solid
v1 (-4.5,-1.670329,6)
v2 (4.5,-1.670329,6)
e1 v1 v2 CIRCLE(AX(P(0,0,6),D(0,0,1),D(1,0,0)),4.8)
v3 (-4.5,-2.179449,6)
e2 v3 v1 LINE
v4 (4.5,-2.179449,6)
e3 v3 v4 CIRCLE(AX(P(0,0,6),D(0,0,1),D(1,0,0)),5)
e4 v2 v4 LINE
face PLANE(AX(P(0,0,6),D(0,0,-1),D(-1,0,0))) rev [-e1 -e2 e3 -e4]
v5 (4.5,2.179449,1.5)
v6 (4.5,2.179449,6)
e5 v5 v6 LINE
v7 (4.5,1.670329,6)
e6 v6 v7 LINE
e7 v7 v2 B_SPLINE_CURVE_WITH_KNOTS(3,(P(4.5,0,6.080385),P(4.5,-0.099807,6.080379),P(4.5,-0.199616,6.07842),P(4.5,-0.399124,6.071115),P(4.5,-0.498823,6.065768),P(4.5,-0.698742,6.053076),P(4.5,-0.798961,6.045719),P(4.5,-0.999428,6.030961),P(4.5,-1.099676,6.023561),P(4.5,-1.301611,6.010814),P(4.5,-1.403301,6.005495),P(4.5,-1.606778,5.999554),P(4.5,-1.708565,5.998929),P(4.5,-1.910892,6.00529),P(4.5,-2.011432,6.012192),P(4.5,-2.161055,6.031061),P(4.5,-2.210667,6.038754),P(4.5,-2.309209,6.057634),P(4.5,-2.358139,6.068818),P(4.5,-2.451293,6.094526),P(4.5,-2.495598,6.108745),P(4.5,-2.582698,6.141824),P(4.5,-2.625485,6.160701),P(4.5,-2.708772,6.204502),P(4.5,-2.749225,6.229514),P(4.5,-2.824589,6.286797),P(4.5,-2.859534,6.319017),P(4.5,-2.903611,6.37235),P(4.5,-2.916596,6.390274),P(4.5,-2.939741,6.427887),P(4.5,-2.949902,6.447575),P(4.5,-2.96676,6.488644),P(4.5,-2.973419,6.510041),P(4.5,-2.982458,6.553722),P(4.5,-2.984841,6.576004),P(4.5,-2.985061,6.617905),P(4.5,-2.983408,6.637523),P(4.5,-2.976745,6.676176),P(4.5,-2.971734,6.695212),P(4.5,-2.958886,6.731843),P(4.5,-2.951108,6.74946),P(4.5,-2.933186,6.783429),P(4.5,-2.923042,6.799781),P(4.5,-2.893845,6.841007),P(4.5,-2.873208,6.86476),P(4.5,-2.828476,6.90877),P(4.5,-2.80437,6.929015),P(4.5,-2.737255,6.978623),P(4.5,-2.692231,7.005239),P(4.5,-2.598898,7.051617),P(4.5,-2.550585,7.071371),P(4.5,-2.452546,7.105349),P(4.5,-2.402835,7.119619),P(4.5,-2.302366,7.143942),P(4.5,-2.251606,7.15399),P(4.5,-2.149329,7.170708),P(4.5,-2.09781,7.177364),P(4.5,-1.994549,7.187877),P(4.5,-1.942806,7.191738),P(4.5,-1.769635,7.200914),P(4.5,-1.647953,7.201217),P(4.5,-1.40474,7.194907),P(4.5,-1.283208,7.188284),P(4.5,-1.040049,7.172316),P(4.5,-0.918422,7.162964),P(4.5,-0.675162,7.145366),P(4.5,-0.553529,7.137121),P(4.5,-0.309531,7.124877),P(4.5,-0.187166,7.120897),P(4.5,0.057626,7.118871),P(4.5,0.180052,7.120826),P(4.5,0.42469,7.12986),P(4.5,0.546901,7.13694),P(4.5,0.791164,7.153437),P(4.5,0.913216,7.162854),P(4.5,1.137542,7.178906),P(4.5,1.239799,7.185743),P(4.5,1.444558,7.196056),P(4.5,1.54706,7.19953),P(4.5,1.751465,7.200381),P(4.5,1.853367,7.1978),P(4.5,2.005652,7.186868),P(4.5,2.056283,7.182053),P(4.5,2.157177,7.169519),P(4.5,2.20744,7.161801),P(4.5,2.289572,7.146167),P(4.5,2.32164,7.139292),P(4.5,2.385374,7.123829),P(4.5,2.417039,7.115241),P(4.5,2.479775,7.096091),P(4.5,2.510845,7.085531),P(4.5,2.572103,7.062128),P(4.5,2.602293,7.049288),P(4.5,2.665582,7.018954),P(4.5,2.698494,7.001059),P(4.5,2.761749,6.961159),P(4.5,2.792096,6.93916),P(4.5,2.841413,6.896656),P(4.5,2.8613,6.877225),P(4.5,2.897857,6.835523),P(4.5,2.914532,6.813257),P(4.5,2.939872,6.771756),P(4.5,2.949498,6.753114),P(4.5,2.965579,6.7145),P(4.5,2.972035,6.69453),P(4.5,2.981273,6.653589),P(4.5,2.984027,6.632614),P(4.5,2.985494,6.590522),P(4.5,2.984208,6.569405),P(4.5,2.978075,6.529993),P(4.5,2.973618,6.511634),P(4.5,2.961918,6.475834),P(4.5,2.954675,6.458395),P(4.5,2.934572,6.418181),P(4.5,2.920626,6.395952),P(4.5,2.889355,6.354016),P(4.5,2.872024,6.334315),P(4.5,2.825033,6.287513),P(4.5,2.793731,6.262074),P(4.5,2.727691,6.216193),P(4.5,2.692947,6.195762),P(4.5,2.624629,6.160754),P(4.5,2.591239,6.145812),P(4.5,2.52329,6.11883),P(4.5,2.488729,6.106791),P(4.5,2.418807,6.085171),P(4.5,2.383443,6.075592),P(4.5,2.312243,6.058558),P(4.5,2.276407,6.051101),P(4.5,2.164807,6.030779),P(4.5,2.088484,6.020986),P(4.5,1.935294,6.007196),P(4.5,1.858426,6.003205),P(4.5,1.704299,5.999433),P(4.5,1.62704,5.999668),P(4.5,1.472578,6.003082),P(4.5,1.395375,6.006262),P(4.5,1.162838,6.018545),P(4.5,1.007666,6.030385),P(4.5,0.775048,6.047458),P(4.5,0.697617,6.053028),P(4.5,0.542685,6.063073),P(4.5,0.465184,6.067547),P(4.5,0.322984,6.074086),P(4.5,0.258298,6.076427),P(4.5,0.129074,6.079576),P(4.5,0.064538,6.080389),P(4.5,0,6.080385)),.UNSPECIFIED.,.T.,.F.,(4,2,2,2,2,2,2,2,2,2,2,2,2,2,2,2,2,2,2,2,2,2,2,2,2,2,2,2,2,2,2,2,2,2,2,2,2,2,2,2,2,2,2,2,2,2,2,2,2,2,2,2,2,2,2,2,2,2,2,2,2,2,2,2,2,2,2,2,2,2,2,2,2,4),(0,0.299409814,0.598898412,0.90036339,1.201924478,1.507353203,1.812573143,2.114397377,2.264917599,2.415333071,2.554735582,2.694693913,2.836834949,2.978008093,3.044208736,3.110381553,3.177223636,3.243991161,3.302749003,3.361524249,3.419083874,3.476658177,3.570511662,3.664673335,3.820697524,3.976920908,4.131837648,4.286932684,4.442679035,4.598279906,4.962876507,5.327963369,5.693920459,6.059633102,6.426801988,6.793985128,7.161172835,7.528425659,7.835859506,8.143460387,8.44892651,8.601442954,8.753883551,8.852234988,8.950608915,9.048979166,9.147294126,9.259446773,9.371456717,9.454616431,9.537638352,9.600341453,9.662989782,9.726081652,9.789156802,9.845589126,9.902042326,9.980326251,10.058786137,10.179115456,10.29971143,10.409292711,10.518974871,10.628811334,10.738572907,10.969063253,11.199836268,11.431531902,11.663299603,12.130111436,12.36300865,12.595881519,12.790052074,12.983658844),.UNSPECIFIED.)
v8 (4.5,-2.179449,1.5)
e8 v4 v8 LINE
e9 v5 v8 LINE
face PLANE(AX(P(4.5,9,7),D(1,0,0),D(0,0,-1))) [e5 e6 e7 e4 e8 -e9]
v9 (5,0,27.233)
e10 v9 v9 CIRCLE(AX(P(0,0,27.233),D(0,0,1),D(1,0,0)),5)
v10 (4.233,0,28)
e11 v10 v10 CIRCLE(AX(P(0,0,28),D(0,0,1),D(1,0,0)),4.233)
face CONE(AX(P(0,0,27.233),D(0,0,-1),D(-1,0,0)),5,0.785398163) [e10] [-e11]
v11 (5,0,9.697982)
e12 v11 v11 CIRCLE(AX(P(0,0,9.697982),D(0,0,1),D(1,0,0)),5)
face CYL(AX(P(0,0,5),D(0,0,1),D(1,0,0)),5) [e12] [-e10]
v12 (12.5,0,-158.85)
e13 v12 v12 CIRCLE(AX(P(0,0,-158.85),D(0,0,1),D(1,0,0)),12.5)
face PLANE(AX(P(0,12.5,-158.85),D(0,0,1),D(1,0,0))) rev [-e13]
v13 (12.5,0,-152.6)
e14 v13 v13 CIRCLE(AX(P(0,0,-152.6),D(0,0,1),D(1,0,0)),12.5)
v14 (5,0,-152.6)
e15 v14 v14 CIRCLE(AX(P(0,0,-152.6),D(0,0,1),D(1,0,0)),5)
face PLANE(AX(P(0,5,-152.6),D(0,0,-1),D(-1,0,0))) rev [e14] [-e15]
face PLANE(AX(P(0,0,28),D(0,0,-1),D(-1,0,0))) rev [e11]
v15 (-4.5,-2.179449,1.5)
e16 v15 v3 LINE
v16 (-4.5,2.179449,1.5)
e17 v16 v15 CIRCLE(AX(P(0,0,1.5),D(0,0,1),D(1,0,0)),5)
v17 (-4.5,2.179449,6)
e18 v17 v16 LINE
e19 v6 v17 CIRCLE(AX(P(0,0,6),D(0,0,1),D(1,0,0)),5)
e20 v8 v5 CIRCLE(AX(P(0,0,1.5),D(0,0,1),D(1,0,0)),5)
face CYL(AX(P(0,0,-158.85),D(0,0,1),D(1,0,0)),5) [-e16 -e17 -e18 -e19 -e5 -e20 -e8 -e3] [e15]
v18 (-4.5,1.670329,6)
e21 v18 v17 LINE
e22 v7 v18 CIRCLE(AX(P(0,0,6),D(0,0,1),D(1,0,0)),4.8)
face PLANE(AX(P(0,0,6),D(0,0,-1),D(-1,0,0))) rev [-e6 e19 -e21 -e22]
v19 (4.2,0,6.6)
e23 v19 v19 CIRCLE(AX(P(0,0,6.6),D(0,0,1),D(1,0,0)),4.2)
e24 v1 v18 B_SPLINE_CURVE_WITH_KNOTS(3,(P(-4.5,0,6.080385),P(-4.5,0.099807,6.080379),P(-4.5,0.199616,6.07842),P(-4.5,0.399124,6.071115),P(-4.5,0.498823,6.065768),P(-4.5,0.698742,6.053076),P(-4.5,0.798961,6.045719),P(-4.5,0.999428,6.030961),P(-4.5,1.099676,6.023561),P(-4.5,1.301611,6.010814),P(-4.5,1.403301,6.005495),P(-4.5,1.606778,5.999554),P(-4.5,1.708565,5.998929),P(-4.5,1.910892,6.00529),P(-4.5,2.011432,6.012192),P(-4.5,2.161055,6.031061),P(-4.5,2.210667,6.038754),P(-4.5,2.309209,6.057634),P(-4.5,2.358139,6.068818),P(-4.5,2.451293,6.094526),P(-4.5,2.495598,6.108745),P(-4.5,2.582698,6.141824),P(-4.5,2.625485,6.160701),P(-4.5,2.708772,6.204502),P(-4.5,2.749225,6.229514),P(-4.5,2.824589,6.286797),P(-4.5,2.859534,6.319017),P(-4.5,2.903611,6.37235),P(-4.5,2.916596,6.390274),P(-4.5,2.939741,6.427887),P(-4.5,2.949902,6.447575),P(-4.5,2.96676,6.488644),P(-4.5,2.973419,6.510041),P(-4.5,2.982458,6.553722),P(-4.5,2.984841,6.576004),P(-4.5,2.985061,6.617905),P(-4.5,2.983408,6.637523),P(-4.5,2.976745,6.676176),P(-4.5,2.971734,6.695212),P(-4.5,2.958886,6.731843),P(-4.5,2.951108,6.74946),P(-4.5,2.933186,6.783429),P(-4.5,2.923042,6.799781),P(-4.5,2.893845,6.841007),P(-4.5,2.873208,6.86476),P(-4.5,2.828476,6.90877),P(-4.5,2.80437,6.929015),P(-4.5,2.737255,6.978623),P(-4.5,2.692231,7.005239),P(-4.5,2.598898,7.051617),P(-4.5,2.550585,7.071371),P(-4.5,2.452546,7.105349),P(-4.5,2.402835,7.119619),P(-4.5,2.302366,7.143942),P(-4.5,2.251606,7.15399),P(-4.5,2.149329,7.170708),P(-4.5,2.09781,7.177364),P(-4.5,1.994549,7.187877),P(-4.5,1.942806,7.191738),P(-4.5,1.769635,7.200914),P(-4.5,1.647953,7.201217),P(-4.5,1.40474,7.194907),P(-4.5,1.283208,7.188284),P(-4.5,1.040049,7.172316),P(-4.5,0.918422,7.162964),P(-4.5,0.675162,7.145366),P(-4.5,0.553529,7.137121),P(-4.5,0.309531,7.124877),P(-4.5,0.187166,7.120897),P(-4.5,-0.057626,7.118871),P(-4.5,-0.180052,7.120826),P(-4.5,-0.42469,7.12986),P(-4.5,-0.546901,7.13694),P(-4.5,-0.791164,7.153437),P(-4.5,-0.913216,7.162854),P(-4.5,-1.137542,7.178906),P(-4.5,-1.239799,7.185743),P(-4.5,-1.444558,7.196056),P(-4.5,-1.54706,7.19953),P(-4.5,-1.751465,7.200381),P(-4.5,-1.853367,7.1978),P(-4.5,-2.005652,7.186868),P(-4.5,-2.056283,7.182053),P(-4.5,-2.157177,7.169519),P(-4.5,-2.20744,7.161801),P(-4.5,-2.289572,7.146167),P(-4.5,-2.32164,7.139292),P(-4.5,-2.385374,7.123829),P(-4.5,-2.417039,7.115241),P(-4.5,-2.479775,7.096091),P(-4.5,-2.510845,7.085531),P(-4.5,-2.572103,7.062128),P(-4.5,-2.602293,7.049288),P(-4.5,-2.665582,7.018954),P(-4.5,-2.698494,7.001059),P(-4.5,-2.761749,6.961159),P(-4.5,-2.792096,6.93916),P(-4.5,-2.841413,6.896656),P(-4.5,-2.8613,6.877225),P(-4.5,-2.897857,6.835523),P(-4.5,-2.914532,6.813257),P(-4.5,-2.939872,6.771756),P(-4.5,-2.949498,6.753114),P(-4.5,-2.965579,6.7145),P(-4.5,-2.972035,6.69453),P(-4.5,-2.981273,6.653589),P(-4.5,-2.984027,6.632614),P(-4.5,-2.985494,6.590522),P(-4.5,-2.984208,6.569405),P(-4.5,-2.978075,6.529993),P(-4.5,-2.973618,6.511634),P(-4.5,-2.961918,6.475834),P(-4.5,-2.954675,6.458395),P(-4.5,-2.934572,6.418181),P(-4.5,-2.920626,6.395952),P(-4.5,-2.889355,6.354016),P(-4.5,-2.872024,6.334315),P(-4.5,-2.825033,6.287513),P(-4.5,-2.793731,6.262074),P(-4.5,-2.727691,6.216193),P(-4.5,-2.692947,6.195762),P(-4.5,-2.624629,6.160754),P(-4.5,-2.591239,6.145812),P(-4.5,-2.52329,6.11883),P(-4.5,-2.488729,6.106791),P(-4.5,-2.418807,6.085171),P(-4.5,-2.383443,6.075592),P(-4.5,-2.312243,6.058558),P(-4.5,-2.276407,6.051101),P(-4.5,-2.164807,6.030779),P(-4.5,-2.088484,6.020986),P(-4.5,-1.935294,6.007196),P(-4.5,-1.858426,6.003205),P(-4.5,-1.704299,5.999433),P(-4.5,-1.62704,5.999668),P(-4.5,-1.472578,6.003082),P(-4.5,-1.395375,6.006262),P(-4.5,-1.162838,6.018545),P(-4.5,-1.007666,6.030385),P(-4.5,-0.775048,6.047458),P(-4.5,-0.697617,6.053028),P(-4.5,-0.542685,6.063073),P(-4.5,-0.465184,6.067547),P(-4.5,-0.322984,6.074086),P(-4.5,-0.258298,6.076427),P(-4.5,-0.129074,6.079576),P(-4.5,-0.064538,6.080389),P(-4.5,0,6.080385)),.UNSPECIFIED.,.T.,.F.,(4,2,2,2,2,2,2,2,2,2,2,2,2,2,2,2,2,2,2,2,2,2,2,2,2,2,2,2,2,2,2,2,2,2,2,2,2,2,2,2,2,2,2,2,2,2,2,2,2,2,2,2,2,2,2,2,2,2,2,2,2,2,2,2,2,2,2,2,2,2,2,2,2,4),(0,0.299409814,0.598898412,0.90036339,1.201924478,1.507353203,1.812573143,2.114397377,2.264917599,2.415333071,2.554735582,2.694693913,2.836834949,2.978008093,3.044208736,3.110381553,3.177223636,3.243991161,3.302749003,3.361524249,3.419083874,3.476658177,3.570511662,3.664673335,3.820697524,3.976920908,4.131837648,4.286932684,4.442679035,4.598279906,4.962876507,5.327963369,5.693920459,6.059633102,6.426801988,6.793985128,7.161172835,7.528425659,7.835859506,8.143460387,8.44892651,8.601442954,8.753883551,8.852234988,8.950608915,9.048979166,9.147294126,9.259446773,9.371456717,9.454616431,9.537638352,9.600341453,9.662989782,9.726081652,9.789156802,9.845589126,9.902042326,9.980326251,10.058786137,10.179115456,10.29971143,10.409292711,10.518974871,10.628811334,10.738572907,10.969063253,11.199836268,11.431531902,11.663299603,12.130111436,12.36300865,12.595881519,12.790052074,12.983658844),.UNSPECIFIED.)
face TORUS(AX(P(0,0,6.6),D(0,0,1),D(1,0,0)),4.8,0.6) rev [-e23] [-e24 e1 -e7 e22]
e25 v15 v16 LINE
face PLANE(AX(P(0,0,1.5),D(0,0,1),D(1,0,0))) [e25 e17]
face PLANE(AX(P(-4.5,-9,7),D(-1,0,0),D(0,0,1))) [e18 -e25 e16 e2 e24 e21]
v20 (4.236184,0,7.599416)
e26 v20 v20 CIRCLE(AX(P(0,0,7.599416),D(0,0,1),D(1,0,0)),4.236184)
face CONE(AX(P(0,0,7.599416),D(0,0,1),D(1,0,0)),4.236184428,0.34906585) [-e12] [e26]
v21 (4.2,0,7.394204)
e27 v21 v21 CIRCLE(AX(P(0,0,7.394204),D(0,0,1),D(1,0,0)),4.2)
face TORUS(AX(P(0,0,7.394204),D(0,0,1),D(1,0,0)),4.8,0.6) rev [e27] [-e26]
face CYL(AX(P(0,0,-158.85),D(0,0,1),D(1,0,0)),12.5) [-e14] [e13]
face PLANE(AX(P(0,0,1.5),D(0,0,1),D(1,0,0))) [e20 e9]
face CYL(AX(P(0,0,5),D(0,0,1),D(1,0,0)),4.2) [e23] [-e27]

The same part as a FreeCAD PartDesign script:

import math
import FreeCAD as App
import Part
import Sketcher
from FreeCAD import Vector
Q = App.Units.Quantity

doc = App.newDocument("Part")
body = doc.addObject("PartDesign::Body", "Body")

sketch1 = body.newObject("Sketcher::SketchObject", "Sketch")
sketch1.AttachmentSupport = (doc.getObject("YZ_Plane"), [""])
sketch1.MapMode = "FlatFace"
sketch1.addGeometry([
    Part.LineSegment(Vector(5, 6, 0), Vector(0, 6, 0)),
    Part.LineSegment(Vector(0, 6, 0), Vector(0, -158.85, 0)),
    Part.LineSegment(Vector(0, -158.85, 0), Vector(12.5, -158.85, 0)),
    Part.LineSegment(Vector(12.5, -158.85, 0), Vector(12.5, -152.6, 0)),
    Part.LineSegment(Vector(12.5, -152.6, 0), Vector(5, -152.6, 0)),
    Part.LineSegment(Vector(5, -152.6, 0), Vector(5, 6, 0)),
], False)
sketch1.addConstraint([
    Sketcher.Constraint("Coincident", 0, 2, 1, 1),
    Sketcher.Constraint("Coincident", 1, 2, 2, 1),
    Sketcher.Constraint("Coincident", 2, 2, 3, 1),
    Sketcher.Constraint("Coincident", 3, 2, 4, 1),
    Sketcher.Constraint("Coincident", 4, 2, 5, 1),
    Sketcher.Constraint("Coincident", 5, 2, 0, 1),
    Sketcher.Constraint("Horizontal", 0),
    Sketcher.Constraint("Vertical", 1),
    Sketcher.Constraint("Horizontal", 2),
    Sketcher.Constraint("Vertical", 3),
    Sketcher.Constraint("Horizontal", 4),
    Sketcher.Constraint("Vertical", 5),
    Sketcher.Constraint("PointOnObject", 0, 2, -2),
    Sketcher.Constraint("DistanceX", 0, 2, 0, 1, Q("5 mm")),
    Sketcher.Constraint("DistanceX", 2, 1, 2, 2, Q("12.5 mm")),
    Sketcher.Constraint("DistanceY", 5, 1, 5, 2, Q("158.6 mm")),
    Sketcher.Constraint("DistanceY", -1, 1, 0, 2, Q("6 mm")),
    Sketcher.Constraint("DistanceY", 1, 2, 1, 1, Q("164.85 mm")),
])
revolution = body.newObject("PartDesign::Revolution", "Revolution")
revolution.Profile = sketch1
revolution.ReferenceAxis = (sketch1, ["V_Axis"])
revolution.Angle = 360

sketch2 = body.newObject("Sketcher::SketchObject", "Sketch001")
sketch2.AttachmentSupport = (doc.getObject("YZ_Plane"), [""])
sketch2.MapMode = "FlatFace"
sketch2.addGeometry([
    Part.LineSegment(Vector(4.233, 28, 0), Vector(0, 28, 0)),
    Part.LineSegment(Vector(0, 28, 0), Vector(0, 5, 0)),
    Part.LineSegment(Vector(0, 5, 0), Vector(5, 5, 0)),
    Part.LineSegment(Vector(5, 5, 0), Vector(5, 6, 0)),
    Part.LineSegment(Vector(5, 6, 0), Vector(4.8, 6, 0)),
    Part.ArcOfCircle(Part.Circle(Vector(4.8, 6.6, 0), Vector(0, 0, 1), 0.6), math.radians(180), math.radians(270)),
    Part.LineSegment(Vector(4.2, 6.6, 0), Vector(4.2, 7.394204, 0)),
    Part.ArcOfCircle(Part.Circle(Vector(4.8, 7.394204, 0), Vector(0, 0, 1), 0.6), math.radians(160), math.radians(180)),
    Part.LineSegment(Vector(4.236184, 7.599416, 0), Vector(5, 9.697982, 0)),
    Part.LineSegment(Vector(5, 9.697982, 0), Vector(5, 27.233, 0)),
    Part.LineSegment(Vector(5, 27.233, 0), Vector(4.233, 28, 0)),
], False)
sketch2.addConstraint([
    Sketcher.Constraint("Coincident", 0, 2, 1, 1),
    Sketcher.Constraint("Coincident", 1, 2, 2, 1),
    Sketcher.Constraint("Coincident", 2, 2, 3, 1),
    Sketcher.Constraint("Coincident", 3, 2, 4, 1),
    Sketcher.Constraint("Tangent", 4, 2, 5, 2),
    Sketcher.Constraint("Tangent", 5, 1, 6, 1),
    Sketcher.Constraint("Tangent", 6, 2, 7, 2),
    Sketcher.Constraint("Tangent", 7, 1, 8, 1),
    Sketcher.Constraint("Coincident", 8, 2, 9, 1),
    Sketcher.Constraint("Coincident", 9, 2, 10, 1),
    Sketcher.Constraint("Coincident", 10, 2, 0, 1),
    Sketcher.Constraint("Horizontal", 0),
    Sketcher.Constraint("Vertical", 1),
    Sketcher.Constraint("Horizontal", 2),
    Sketcher.Constraint("Vertical", 3),
    Sketcher.Constraint("Horizontal", 4),
    Sketcher.Constraint("Vertical", 6),
    Sketcher.Constraint("Vertical", 9),
    Sketcher.Constraint("Equal", 5, 7),
    Sketcher.Constraint("PointOnObject", 0, 2, -2),
    Sketcher.Constraint("Vertical", 3, 2, 8, 2),
    Sketcher.Constraint("Radius", 5, Q("0.6 mm")),
    Sketcher.Constraint("DistanceX", 2, 1, 2, 2, Q("5 mm")),
    Sketcher.Constraint("DistanceY", 1, 2, 1, 1, Q("23 mm")),
    Sketcher.Constraint("DistanceY", 3, 1, 3, 2, Q("1 mm")),
    Sketcher.Constraint("Angle", 8, Q("70 deg")),
    Sketcher.Constraint("Angle", 10, Q("135 deg")),
    Sketcher.Constraint("DistanceX", 4, 2, 4, 1, Q("0.2 mm")),
    Sketcher.Constraint("DistanceY", -1, 1, 0, 2, Q("28 mm")),
    Sketcher.Constraint("DistanceX", 0, 2, 0, 1, Q("4.233 mm")),
    Sketcher.Constraint("DistanceY", 9, 1, 9, 2, Q("17.535018 mm")),
])
revolution2 = body.newObject("PartDesign::Revolution", "Revolution001")
revolution2.Profile = sketch2
revolution2.ReferenceAxis = (sketch2, ["V_Axis"])
revolution2.Angle = 360

sketch3 = body.newObject("Sketcher::SketchObject", "Sketch002")
sketch3.AttachmentSupport = (doc.getObject("XY_Plane"), [""])
sketch3.MapMode = "FlatFace"
sketch3.AttachmentOffset = App.Placement(Vector(0, 0, 1.5), App.Rotation())
sketch3.addGeometry([
    Part.LineSegment(Vector(-9, 18, 0), Vector(-9, -9, 0)),
    Part.LineSegment(Vector(-9, -9, 0), Vector(-4.5, -9, 0)),
    Part.LineSegment(Vector(-4.5, -9, 0), Vector(-4.5, 9, 0)),
    Part.LineSegment(Vector(-4.5, 9, 0), Vector(4.5, 9, 0)),
    Part.LineSegment(Vector(4.5, 9, 0), Vector(4.5, -9, 0)),
    Part.LineSegment(Vector(4.5, -9, 0), Vector(9, -9, 0)),
    Part.LineSegment(Vector(9, -9, 0), Vector(9, 18, 0)),
    Part.LineSegment(Vector(9, 18, 0), Vector(-9, 18, 0)),
], False)
sketch3.addConstraint([
    Sketcher.Constraint("Coincident", 0, 2, 1, 1),
    Sketcher.Constraint("Coincident", 1, 2, 2, 1),
    Sketcher.Constraint("Coincident", 2, 2, 3, 1),
    Sketcher.Constraint("Coincident", 3, 2, 4, 1),
    Sketcher.Constraint("Coincident", 4, 2, 5, 1),
    Sketcher.Constraint("Coincident", 5, 2, 6, 1),
    Sketcher.Constraint("Coincident", 6, 2, 7, 1),
    Sketcher.Constraint("Coincident", 7, 2, 0, 1),
    Sketcher.Constraint("Vertical", 0),
    Sketcher.Constraint("Horizontal", 1),
    Sketcher.Constraint("Vertical", 2),
    Sketcher.Constraint("Horizontal", 3),
    Sketcher.Constraint("Vertical", 4),
    Sketcher.Constraint("Horizontal", 5),
    Sketcher.Constraint("Vertical", 6),
    Sketcher.Constraint("Horizontal", 7),
    Sketcher.Constraint("Symmetric", 1, 2, 3, 2, -1, 1),
    Sketcher.Constraint("Symmetric", 0, 2, 5, 2, -2),
    Sketcher.Constraint("Equal", 7, 2),
    Sketcher.Constraint("DistanceX", 3, 1, 3, 2, Q("9 mm")),
    Sketcher.Constraint("DistanceX", 7, 2, 7, 1, Q("18 mm")),
    Sketcher.Constraint("DistanceY", 0, 2, 0, 1, Q("27 mm")),
])
pocket1 = body.newObject("PartDesign::Pocket", "Pocket")
pocket1.Profile = sketch3
pocket1.Length = 5.5
pocket1.Reversed = True

doc.recompute()
